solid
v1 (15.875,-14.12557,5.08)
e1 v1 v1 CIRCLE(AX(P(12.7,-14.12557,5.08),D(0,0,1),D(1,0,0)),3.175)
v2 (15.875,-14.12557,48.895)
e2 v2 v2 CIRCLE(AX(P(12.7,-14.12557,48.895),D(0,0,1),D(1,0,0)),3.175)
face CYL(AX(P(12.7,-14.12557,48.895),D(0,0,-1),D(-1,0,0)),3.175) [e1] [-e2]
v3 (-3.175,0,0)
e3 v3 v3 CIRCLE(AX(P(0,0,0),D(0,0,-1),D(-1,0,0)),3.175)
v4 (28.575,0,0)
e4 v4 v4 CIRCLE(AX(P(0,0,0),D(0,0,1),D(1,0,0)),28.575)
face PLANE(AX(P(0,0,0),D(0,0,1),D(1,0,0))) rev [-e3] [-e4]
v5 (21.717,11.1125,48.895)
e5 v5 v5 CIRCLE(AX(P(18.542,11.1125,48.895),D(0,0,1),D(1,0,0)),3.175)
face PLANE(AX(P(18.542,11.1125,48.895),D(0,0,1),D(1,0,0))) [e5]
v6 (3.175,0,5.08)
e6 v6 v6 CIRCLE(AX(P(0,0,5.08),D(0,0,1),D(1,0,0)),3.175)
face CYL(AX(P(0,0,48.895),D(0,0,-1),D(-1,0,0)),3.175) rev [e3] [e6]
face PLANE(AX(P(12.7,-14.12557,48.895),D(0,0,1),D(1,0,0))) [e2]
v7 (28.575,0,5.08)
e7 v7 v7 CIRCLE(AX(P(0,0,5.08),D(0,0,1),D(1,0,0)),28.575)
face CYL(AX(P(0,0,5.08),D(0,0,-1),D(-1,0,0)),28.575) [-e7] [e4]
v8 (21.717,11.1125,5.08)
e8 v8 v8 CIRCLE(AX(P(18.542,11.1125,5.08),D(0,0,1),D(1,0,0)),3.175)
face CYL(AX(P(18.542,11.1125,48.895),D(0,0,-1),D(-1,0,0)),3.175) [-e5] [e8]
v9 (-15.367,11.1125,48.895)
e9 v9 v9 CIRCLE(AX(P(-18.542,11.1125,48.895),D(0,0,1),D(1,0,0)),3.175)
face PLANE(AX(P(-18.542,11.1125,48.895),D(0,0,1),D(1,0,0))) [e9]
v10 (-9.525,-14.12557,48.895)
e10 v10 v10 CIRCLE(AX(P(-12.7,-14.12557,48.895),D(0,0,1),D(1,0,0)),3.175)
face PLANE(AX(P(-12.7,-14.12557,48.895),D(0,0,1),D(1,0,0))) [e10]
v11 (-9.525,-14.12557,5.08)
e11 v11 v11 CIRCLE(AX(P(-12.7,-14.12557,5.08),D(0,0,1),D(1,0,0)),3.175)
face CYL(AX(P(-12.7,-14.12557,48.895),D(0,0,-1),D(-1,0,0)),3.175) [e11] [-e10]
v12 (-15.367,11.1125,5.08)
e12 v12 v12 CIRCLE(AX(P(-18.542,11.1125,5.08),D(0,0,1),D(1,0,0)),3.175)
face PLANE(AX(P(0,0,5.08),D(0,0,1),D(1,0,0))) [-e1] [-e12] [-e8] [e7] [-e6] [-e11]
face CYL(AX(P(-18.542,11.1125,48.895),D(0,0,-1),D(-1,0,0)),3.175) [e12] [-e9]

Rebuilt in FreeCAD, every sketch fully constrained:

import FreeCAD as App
import Part
import Sketcher

V = App.Vector
Q = App.Units.Quantity

doc = App.newDocument("Part")
body = doc.addObject("PartDesign::Body", "Body")

sketch1 = body.newObject("Sketcher::SketchObject", "Sketch")
sketch1.AttachmentSupport = (doc.getObject("XY_Plane"), [""])
sketch1.MapMode = "FlatFace"
sketch1.addGeometry(Part.Circle(V(0, 0, 0), V(0, 0, 1), 29), False)
sketch1.addConstraint([
    Sketcher.Constraint("Coincident", 0, 3, -1, 1),
    Sketcher.Constraint("Diameter", 0, Q("2.25 in")),
])
pad1 = body.newObject("PartDesign::Pad", "Pad")
pad1.Profile = sketch1
pad1.Length = Q("0.2 in")

sketch2 = body.newObject("Sketcher::SketchObject", "Sketch001")
sketch2.AttachmentSupport = (doc.getObject("XY_Plane"), [""])
sketch2.MapMode = "FlatFace"
sketch2.AttachmentOffset = App.Placement(V(0, 0, 0.2 * 25.4), App.Rotation())
sketch2.addGeometry([
    Part.Circle(V(-18.5, 11.1, 0), V(0, 0, 1), 3.2),
    Part.Circle(V(18.5, 11.1, 0), V(0, 0, 1), 3.2),
    Part.Circle(V(-12.7, -14.1, 0), V(0, 0, 1), 3.2),
    Part.Circle(V(12.7, -14.1, 0), V(0, 0, 1), 3.2),
], False)
sketch2.addConstraint([
    Sketcher.Constraint("Equal", 0, 1),
    Sketcher.Constraint("Equal", 1, 2),
    Sketcher.Constraint("Equal", 2, 3),
    Sketcher.Constraint("Symmetric", 0, 3, 1, 3, -2),
    Sketcher.Constraint("Symmetric", 2, 3, 3, 3, -2),
    Sketcher.Constraint("Diameter", 0, Q("0.25 in")),
    Sketcher.Constraint("DistanceX", 2, 3, 3, 3, Q("1 in")),
    Sketcher.Constraint("DistanceX", 0, 3, -1, 1, Q("0.73 in")),
    Sketcher.Constraint("DistanceY", -1, 1, 0, 3, Q("0.4375 in")),
    Sketcher.Constraint("DistanceY", 2, 3, -1, 1, Q("14.12557 mm")),
])
pad2 = body.newObject("PartDesign::Pad", "Pad001")
pad2.Profile = sketch2
pad2.Length = Q("1.725 in")

sketch3 = body.newObject("Sketcher::SketchObject", "Sketch002")
sketch3.AttachmentSupport = (doc.getObject("XY_Plane"), [""])
sketch3.MapMode = "FlatFace"
sketch3.addGeometry(Part.Circle(V(0, 0, 0), V(0, 0, 1), 3.2), False)
sketch3.addConstraint([
    Sketcher.Constraint("Coincident", 0, 3, -1, 1),
    Sketcher.Constraint("Diameter", 0, Q("0.25 in")),
])
pocket1 = body.newObject("PartDesign::Pocket", "Pocket")
pocket1.Profile = sketch3
pocket1.Type = "ThroughAll"
pocket1.Reversed = True

doc.recompute()
